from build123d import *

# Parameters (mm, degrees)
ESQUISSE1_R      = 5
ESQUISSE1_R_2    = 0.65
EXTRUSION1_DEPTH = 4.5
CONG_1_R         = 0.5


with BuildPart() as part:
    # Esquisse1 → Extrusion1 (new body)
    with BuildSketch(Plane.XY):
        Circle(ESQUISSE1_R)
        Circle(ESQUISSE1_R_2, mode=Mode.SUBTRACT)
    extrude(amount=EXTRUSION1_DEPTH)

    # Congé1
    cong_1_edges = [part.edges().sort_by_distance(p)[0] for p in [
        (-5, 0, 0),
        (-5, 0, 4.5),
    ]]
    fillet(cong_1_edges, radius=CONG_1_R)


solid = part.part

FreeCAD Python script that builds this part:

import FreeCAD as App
import Part
import Sketcher
from FreeCAD import Vector
Q = App.Units.Quantity


def edges_at(feature, points):
    """Names of the edges that pass closest to the given points."""
    edges = feature.Shape.Edges
    near = lambda p: min(range(len(edges)), key=lambda i: edges[i].distToShape(Part.Vertex(*p))[0])
    return sorted({f"Edge{near(p) + 1}" for p in points})

doc = App.newDocument("Part")
params = doc.addObject("Spreadsheet::Sheet", "Params")
for row, (alias, value) in enumerate([
    ("sketch1_diameter", "10 mm"),
    ("sketch1_diameter2", "1.3 mm"),
    ("pad1_length", "4.5 mm"),
    ("fillet_radius", "0.5 mm"),
], start=1):
    params.set(f"A{row}", alias)
    params.set(f"B{row}", "=" + value)
    params.setAlias(f"B{row}", alias)

body = doc.addObject("PartDesign::Body", "Body")

sketch1 = body.newObject("Sketcher::SketchObject", "Sketch")
sketch1.AttachmentSupport = (doc.getObject("XY_Plane"), [""])
sketch1.MapMode = "FlatFace"
sketch1.addGeometry([
    Part.Circle(Vector(0, 0, 0), Vector(0, 0, 1), 5),
    Part.Circle(Vector(0, 0, 0), Vector(0, 0, 1), 0.7),
], False)
sketch1.addConstraint([
    Sketcher.Constraint("Coincident", 0, 3, -1, 1),
    Sketcher.Constraint("Coincident", 1, 3, -1, 1),
    Sketcher.Constraint("Diameter", 0, Q("10 mm")),
    Sketcher.Constraint("Diameter", 1, Q("1.3 mm")),
])
sketch1.setExpression("Constraints[2]", "Params.sketch1_diameter")
sketch1.setExpression("Constraints[3]", "Params.sketch1_diameter2")
pad1 = body.newObject("PartDesign::Pad", "Pad")
pad1.Profile = sketch1
pad1.setExpression("Length", "Params.pad1_length")
doc.recompute()

fillet = body.newObject("PartDesign::Fillet", "Fillet")
fillet.Base = (pad1, edges_at(pad1, [(-5, 0, 0), (-5, 0, 4.5)]))
fillet.setExpression("Radius", "Params.fillet_radius")

doc.recompute()
